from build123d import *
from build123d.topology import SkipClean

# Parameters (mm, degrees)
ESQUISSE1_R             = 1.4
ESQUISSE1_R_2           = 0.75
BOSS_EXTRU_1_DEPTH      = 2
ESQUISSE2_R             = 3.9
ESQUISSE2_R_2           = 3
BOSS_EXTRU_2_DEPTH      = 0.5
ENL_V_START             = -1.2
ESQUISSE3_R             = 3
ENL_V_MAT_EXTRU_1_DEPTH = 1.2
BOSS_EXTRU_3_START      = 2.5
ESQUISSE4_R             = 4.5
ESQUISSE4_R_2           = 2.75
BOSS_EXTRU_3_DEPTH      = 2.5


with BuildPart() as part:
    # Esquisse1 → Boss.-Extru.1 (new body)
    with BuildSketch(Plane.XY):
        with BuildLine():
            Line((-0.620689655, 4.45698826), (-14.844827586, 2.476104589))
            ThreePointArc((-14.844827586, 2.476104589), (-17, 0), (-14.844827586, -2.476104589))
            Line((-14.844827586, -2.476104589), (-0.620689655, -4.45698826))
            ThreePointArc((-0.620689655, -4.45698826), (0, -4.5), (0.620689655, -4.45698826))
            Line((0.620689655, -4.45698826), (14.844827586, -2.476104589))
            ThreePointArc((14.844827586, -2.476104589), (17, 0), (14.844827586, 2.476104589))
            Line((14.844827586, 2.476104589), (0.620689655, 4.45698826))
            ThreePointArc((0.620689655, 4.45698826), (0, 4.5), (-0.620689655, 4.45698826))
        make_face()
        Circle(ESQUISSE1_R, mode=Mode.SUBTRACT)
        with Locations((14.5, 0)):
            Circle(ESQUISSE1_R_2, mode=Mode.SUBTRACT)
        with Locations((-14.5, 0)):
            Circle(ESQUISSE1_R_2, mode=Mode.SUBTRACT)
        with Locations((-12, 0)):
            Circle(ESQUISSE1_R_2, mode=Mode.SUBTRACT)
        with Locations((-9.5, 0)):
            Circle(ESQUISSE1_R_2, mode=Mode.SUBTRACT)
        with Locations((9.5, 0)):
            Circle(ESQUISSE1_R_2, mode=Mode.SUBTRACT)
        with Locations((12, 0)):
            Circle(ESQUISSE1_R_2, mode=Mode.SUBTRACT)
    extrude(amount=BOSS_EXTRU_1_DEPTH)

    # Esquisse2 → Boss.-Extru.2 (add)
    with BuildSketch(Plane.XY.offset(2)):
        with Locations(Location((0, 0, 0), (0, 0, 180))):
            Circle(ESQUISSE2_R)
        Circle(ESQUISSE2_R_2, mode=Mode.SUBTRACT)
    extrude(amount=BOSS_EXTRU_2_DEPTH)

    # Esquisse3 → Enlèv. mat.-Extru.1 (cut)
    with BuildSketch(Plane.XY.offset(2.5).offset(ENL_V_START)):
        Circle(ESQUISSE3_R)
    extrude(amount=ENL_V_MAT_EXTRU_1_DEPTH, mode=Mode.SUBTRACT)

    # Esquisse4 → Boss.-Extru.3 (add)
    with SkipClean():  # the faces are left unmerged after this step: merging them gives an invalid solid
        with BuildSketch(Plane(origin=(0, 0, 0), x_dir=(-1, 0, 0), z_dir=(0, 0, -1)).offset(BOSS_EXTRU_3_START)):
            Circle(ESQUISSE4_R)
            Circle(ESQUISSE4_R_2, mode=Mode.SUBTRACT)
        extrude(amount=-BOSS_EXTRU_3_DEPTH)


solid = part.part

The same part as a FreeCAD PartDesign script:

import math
import FreeCAD as App
import Part
import Sketcher
from FreeCAD import Vector

doc = App.newDocument("Part")
params = doc.addObject("Spreadsheet::Sheet", "Params")
for row, (alias, value) in enumerate([
    ("sketch1_diameter", "1.5 mm"),
    ("sketch1_diameter2", "2.8 mm"),
    ("sketch1_radius", "2.5 mm"),
    ("sketch1_radius2", "4.5 mm"),
    ("pad1_length", "2 mm"),
    ("sketch2_diameter", "6 mm"),
    ("sketch2_diameter2", "7.8 mm"),
    ("pad2_length", "0.5 mm"),
    ("sketch3_diameter", "6 mm"),
    ("pocket1_length", "1.2 mm"),
    ("sketch4_diameter", "9 mm"),
    ("sketch4_diameter2", "5.5 mm"),
    ("pad3_length", "2.5 mm"),
], start=1):
    params.set(f"A{row}", alias)
    params.set(f"B{row}", "=" + value)
    params.setAlias(f"B{row}", alias)

body = doc.addObject("PartDesign::Body", "Body")

sketch1 = body.newObject("Sketcher::SketchObject", "Sketch")
sketch1.AttachmentSupport = (doc.getObject("XY_Plane"), [""])
sketch1.MapMode = "FlatFace"
sketch1.addGeometry([
    Part.LineSegment(Vector(-0.62069, 4.456988, 0), Vector(-14.844828, 2.476105, 0)),
    Part.ArcOfCircle(Part.Circle(Vector(-14.5, 0, 0), Vector(0, 0, 1), 2.5), math.radians(97.928142), math.radians(262.071858)),
    Part.LineSegment(Vector(-14.844828, -2.476105, 0), Vector(-0.62069, -4.456988, 0)),
    Part.ArcOfCircle(Part.Circle(Vector(0, 0, 0), Vector(0, 0, 1), 4.5), math.radians(-97.928142), math.radians(-82.071858)),
    Part.LineSegment(Vector(0.62069, -4.456988, 0), Vector(14.844828, -2.476105, 0)),
    Part.ArcOfCircle(Part.Circle(Vector(14.5, 0, 0), Vector(0, 0, 1), 2.5), math.radians(-82.071858), math.radians(82.071858)),
    Part.LineSegment(Vector(14.844828, 2.476105, 0), Vector(0.62069, 4.456988, 0)),
    Part.ArcOfCircle(Part.Circle(Vector(0, 0, 0), Vector(0, 0, 1), 4.5), math.radians(82.071858), math.radians(97.928142)),
    Part.Circle(Vector(-14.5, 0, 0), Vector(0, 0, 1), 0.75),
    Part.Circle(Vector(-12, 0, 0), Vector(0, 0, 1), 0.75),
    Part.Circle(Vector(-9.5, 0, 0), Vector(0, 0, 1), 0.75),
    Part.Circle(Vector(0, 0, 0), Vector(0, 0, 1), 1.4),
    Part.Circle(Vector(9.5, 0, 0), Vector(0, 0, 1), 0.75),
    Part.Circle(Vector(12, 0, 0), Vector(0, 0, 1), 0.75),
    Part.Circle(Vector(14.5, 0, 0), Vector(0, 0, 1), 0.75),
], False)
sketch1.addConstraint([
    Sketcher.Constraint("Tangent", 0, 2, 1, 1),
    Sketcher.Constraint("Tangent", 1, 2, 2, 1),
    Sketcher.Constraint("Tangent", 2, 2, 3, 1),
    Sketcher.Constraint("Tangent", 3, 2, 4, 1),
    Sketcher.Constraint("Tangent", 4, 2, 5, 1),
    Sketcher.Constraint("Tangent", 5, 2, 6, 1),
    Sketcher.Constraint("Tangent", 6, 2, 7, 1),
    Sketcher.Constraint("Tangent", 7, 2, 0, 1),
    Sketcher.Constraint("Coincident", 3, 3, -1, 1),
    Sketcher.Constraint("Coincident", 7, 3, -1, 1),
    Sketcher.Constraint("Coincident", 11, 3, -1, 1),
    Sketcher.Constraint("Coincident", 8, 3, 1, 3),
    Sketcher.Constraint("Coincident", 14, 3, 5, 3),
    Sketcher.Constraint("Equal", 1, 5),
    Sketcher.Constraint("Equal", 3, 7),
    Sketcher.Constraint("Equal", 8, 9),
    Sketcher.Constraint("Equal", 9, 10),
    Sketcher.Constraint("Equal", 10, 12),
    Sketcher.Constraint("Equal", 12, 13),
    Sketcher.Constraint("Equal", 13, 14),
    Sketcher.Constraint("Symmetric", 1, 3, 5, 3, -1, 1),
    Sketcher.Constraint("Symmetric", 10, 3, 12, 3, -1, 1),
    Sketcher.Constraint("Symmetric", 9, 3, 13, 3, -1, 1),
    Sketcher.Constraint("PointOnObject", 1, 3, -1),
    Sketcher.Constraint("PointOnObject", 9, 3, -1),
    Sketcher.Constraint("PointOnObject", 10, 3, -1),
    Sketcher.Constraint("Diameter", 8, 1.5),
    Sketcher.Constraint("Diameter", 11, 2.8),
    Sketcher.Constraint("Radius", 1, 2.5),
    Sketcher.Constraint("Radius", 3, 4.5),
    Sketcher.Constraint("DistanceX", 9, 3, -1, 1, 12.0),
    Sketcher.Constraint("DistanceX", 1, 3, 5, 3, 29.0),
    Sketcher.Constraint("DistanceX", 1, 3, 10, 3, 5.0),
])
sketch1.setExpression("Constraints[26]", "Params.sketch1_diameter")
sketch1.setExpression("Constraints[27]", "Params.sketch1_diameter2")
sketch1.setExpression("Constraints[28]", "Params.sketch1_radius")
sketch1.setExpression("Constraints[29]", "Params.sketch1_radius2")
pad1 = body.newObject("PartDesign::Pad", "Pad")
pad1.Profile = sketch1
pad1.setExpression("Length", "Params.pad1_length")

sketch2 = body.newObject("Sketcher::SketchObject", "Sketch001")
sketch2.AttachmentSupport = (doc.getObject("XY_Plane"), [""])
sketch2.MapMode = "FlatFace"
sketch2.AttachmentOffset = App.Placement(Vector(0, 0, 2), App.Rotation())
sketch2.addGeometry([
    Part.Circle(Vector(0, 0, 0), Vector(0, 0, 1), 3.9),
    Part.Circle(Vector(0, 0, 0), Vector(0, 0, 1), 3),
], False)
sketch2.addConstraint([
    Sketcher.Constraint("Coincident", 0, 3, -1, 1),
    Sketcher.Constraint("Coincident", 1, 3, -1, 1),
    Sketcher.Constraint("Diameter", 1, 6.0),
    Sketcher.Constraint("Diameter", 0, 7.8),
])
sketch2.setExpression("Constraints[2]", "Params.sketch2_diameter")
sketch2.setExpression("Constraints[3]", "Params.sketch2_diameter2")
pad2 = body.newObject("PartDesign::Pad", "Pad001")
pad2.Profile = sketch2
pad2.setExpression("Length", "Params.pad2_length")

sketch3 = body.newObject("Sketcher::SketchObject", "Sketch002")
sketch3.AttachmentSupport = (doc.getObject("XY_Plane"), [""])
sketch3.MapMode = "FlatFace"
sketch3.AttachmentOffset = App.Placement(Vector(0, 0, 1.3), App.Rotation())
sketch3.addGeometry(Part.Circle(Vector(0, 0, 0), Vector(0, 0, 1), 3), False)
sketch3.addConstraint([
    Sketcher.Constraint("Coincident", 0, 3, -1, 1),
    Sketcher.Constraint("Diameter", 0, 6.0),
])
sketch3.setExpression("Constraints[1]", "Params.sketch3_diameter")
pocket1 = body.newObject("PartDesign::Pocket", "Pocket")
pocket1.Profile = sketch3
pocket1.setExpression("Length", "Params.pocket1_length")
pocket1.Reversed = True

sketch4 = body.newObject("Sketcher::SketchObject", "Sketch003")
sketch4.AttachmentSupport = (doc.getObject("XY_Plane"), [""])
sketch4.MapMode = "FlatFace"
sketch4.AttachmentOffset = App.Placement(Vector(0, 0, -2.5), App.Rotation())
sketch4.addGeometry([
    Part.Circle(Vector(0, 0, 0), Vector(0, 0, 1), 4.5),
    Part.Circle(Vector(0, 0, 0), Vector(0, 0, 1), 2.75),
], False)
sketch4.addConstraint([
    Sketcher.Constraint("Coincident", 0, 3, -1, 1),
    Sketcher.Constraint("Coincident", 1, 3, -1, 1),
    Sketcher.Constraint("Diameter", 0, 9.0),
    Sketcher.Constraint("Diameter", 1, 5.5),
])
sketch4.setExpression("Constraints[2]", "Params.sketch4_diameter")
sketch4.setExpression("Constraints[3]", "Params.sketch4_diameter2")
pad3 = body.newObject("PartDesign::Pad", "Pad002")
pad3.Profile = sketch4
pad3.setExpression("Length", "Params.pad3_length")

doc.recompute()
